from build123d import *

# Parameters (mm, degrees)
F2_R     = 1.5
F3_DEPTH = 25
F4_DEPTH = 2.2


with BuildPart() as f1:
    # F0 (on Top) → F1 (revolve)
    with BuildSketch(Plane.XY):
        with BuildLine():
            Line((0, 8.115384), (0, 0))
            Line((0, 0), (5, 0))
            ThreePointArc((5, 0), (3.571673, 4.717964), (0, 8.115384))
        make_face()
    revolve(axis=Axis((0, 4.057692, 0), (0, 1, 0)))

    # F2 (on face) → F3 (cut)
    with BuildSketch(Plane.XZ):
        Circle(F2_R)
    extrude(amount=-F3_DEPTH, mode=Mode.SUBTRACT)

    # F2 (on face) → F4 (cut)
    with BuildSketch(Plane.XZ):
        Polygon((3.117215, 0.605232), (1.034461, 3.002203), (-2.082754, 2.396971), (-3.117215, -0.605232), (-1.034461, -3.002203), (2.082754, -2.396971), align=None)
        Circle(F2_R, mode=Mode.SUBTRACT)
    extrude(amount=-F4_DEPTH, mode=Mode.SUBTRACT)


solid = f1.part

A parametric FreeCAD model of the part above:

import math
import FreeCAD as App
import Part
import Sketcher


def add_polygon(sketch, points):
    """Adds a closed chain of lines whose ends are joined by coincident constraints."""
    first, n = sketch.GeometryCount, len(points)
    for a, b in zip(points, points[1:] + points[:1]):
        sketch.addGeometry(Part.LineSegment(App.Vector(*a, 0), App.Vector(*b, 0)), False)
    for i in range(n):
        sketch.addConstraint(Sketcher.Constraint("Coincident", first + i, 2, first + (i + 1) % n, 1))

doc = App.newDocument("Part")
body = doc.addObject("PartDesign::Body", "Body")

sketch1 = body.newObject("Sketcher::SketchObject", "Sketch")
sketch1.AttachmentSupport = (doc.getObject("XY_Plane"), [""])
sketch1.MapMode = "FlatFace"
sketch1.addGeometry(Part.LineSegment(App.Vector(0, 8.115384, 0), App.Vector(0, 0, 0)), False)
sketch1.addGeometry(Part.LineSegment(App.Vector(0, 0, 0), App.Vector(5, 0, 0)), False)
sketch1.addGeometry(Part.ArcOfCircle(Part.Circle(App.Vector(-4.646016, -0.345067, 0), App.Vector(0, 0, 1), 9.652186), math.radians(2.048769), math.radians(61.226822)), False)
sketch1.addConstraint(Sketcher.Constraint("Coincident", 0, 2, 1, 1))
sketch1.addConstraint(Sketcher.Constraint("Coincident", 1, 2, 2, 1))
sketch1.addConstraint(Sketcher.Constraint("Coincident", 2, 2, 0, 1))
sketch1.addConstraint(Sketcher.Constraint("Vertical", 0))
sketch1.addConstraint(Sketcher.Constraint("Horizontal", 1))
sketch1.addConstraint(Sketcher.Constraint("Coincident", 0, 2, -1, 1))
sketch1.addConstraint(Sketcher.Constraint("DistanceX", 1, 1, 1, 2, 5.0))
sketch1.addConstraint(Sketcher.Constraint("Radius", 2, 9.652186))
sketch1.addConstraint(Sketcher.Constraint("DistanceY", 0, 2, 0, 1, 8.115384))
revolution = body.newObject("PartDesign::Revolution", "Revolution")
revolution.Profile = sketch1
revolution.ReferenceAxis = (sketch1, ["V_Axis"])
revolution.Angle = 360

sketch2 = body.newObject("Sketcher::SketchObject", "Sketch001")
sketch2.AttachmentSupport = (doc.getObject("XZ_Plane"), [""])
sketch2.MapMode = "FlatFace"
sketch2.addGeometry(Part.Circle(App.Vector(0, 0, 0), App.Vector(0, 0, 1), 1.5), False)
sketch2.addConstraint(Sketcher.Constraint("Coincident", 0, 3, -1, 1))
sketch2.addConstraint(Sketcher.Constraint("Diameter", 0, 3.0))
pocket1 = body.newObject("PartDesign::Pocket", "Pocket")
pocket1.Profile = sketch2
pocket1.Length = 25

sketch3 = body.newObject("Sketcher::SketchObject", "Sketch002")
sketch3.AttachmentSupport = (doc.getObject("XZ_Plane"), [""])
sketch3.MapMode = "FlatFace"
add_polygon(sketch3, [(3.117215, 0.605232), (1.034461, 3.002203), (-2.082754, 2.396971), (-3.117215, -0.605232), (-1.034461, -3.002203), (2.082754, -2.396971)])
sketch3.addGeometry(Part.Circle(App.Vector(0, 0, 0), App.Vector(0, 0, 1), 1.5), False)
sketch3.addConstraint(Sketcher.Constraint("Coincident", 6, 3, -1, 1))
sketch3.addConstraint(Sketcher.Constraint("Symmetric", 0, 2, 3, 2, -1, 1))
sketch3.addConstraint(Sketcher.Constraint("Symmetric", 1, 2, 4, 2, -1, 1))
sketch3.addConstraint(Sketcher.Constraint("Symmetric", 2, 2, 5, 2, -1, 1))
sketch3.addConstraint(Sketcher.Constraint("Equal", 0, 1))
sketch3.addConstraint(Sketcher.Constraint("Equal", 1, 2))
sketch3.addConstraint(Sketcher.Constraint("Diameter", 6, 3.0))
sketch3.addConstraint(Sketcher.Constraint("DistanceX", -1, 1, 0, 2, 1.034461))
sketch3.addConstraint(Sketcher.Constraint("DistanceY", -1, 1, 1, 2, 2.396971))
sketch3.addConstraint(Sketcher.Constraint("DistanceY", 2, 2, -1, 1, 0.605232))
sketch3.addConstraint(Sketcher.Constraint("DistanceY", 1, 2, 0, 2, 0.605232))
pocket2 = body.newObject("PartDesign::Pocket", "Pocket001")
pocket2.Profile = sketch3
pocket2.Length = 2.2

doc.recompute()
